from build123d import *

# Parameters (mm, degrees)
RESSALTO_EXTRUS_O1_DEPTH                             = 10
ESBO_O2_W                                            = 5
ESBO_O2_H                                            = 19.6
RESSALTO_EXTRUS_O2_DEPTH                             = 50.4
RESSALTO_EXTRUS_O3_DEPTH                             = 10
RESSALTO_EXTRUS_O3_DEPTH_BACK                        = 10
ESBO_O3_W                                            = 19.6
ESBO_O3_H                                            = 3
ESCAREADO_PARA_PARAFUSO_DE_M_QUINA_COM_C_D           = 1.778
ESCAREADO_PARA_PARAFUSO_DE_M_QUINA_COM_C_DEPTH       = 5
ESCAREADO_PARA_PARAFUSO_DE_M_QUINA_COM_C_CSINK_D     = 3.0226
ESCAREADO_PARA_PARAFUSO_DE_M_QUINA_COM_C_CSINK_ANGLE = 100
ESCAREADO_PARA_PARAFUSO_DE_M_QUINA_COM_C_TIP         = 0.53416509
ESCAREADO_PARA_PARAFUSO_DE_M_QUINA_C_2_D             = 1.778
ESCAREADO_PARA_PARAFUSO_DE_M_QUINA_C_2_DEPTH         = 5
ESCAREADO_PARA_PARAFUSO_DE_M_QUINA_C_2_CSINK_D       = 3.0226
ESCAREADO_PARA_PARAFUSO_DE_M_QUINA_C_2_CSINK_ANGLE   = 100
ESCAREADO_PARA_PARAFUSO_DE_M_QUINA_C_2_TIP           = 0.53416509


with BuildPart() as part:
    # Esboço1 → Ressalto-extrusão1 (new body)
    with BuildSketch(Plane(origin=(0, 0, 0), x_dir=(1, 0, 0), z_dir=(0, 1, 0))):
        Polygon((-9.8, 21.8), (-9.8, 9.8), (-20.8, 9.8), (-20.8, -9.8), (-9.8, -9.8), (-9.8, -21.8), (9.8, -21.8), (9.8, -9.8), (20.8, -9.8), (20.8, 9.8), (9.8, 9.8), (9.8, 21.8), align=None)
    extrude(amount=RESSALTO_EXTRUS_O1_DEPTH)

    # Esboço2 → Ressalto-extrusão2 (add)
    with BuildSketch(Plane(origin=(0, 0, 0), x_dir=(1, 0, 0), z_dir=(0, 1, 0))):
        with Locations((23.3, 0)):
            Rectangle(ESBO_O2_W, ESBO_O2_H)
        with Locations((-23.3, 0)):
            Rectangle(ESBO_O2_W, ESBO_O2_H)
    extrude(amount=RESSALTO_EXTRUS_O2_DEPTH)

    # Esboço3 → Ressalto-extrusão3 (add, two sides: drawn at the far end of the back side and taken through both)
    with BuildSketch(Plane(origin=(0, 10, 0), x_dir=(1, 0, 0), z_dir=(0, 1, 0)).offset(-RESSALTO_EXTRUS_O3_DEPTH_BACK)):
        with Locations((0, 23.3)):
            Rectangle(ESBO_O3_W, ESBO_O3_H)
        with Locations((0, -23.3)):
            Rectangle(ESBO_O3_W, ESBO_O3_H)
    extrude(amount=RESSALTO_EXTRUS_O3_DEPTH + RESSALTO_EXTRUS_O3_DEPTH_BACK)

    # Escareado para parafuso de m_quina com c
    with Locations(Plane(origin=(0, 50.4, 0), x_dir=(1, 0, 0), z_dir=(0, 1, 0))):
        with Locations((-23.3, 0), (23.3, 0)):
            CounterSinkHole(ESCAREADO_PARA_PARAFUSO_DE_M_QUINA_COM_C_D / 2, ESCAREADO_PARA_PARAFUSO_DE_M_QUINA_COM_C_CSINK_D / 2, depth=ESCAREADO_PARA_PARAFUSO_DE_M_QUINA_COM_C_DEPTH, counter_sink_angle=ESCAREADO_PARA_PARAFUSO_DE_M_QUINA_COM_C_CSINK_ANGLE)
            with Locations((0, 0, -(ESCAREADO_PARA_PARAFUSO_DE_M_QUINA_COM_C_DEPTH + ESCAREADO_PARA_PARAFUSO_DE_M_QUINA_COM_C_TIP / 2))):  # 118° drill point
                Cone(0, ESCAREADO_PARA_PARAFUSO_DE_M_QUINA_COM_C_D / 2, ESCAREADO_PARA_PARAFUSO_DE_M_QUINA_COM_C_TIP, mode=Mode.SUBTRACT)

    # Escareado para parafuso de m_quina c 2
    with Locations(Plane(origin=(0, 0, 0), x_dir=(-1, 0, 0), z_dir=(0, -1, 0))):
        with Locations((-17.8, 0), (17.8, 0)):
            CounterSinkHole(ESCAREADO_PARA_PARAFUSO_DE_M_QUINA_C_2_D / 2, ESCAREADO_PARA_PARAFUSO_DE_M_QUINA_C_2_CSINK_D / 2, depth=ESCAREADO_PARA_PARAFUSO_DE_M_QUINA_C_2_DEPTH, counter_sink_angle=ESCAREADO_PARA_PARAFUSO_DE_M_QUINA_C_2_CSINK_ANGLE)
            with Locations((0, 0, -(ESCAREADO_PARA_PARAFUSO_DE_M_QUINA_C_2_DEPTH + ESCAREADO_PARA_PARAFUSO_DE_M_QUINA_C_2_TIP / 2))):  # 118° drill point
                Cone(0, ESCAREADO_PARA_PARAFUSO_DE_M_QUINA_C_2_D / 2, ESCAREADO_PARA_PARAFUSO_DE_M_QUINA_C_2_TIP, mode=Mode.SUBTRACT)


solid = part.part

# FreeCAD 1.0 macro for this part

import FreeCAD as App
import Part
import Sketcher

V = App.Vector
Q = App.Units.Quantity

doc = App.newDocument("Part")
params = doc.addObject("Spreadsheet::Sheet", "Params")
for row, (alias, value) in enumerate([
    ("sketch1_width", "11 mm"),
    ("sketch1_height", "12 mm"),
    ("sketch1_width2", "19.6 mm"),
    ("pad1_length", "10 mm"),
    ("sketch2_width", "5 mm"),
    ("sketch2_height", "19.6 mm"),
    ("pad2_length", "50.4 mm"),
    ("sketch3_height", "3 mm"),
    ("sketch3_width", "19.6 mm"),
    ("pad3_length", "10 mm"),
    ("pad3_length2", "10 mm"),
    ("hole_diameter", "1.778 mm"),
    ("hole_depth", "5 mm"),
    ("hole_csink_diameter", "3.0226 mm"),
    ("hole2_diameter", "1.778 mm"),
    ("hole2_depth", "5 mm"),
    ("hole2_csink_diameter", "3.0226 mm"),
], start=1):
    params.set(f"A{row}", alias)
    params.set(f"B{row}", "=" + value)
    params.setAlias(f"B{row}", alias)

body = doc.addObject("PartDesign::Body", "Body")

# Sketch on XZ plane
sketch1 = body.newObject("Sketcher::SketchObject", "Sketch")
sketch1.AttachmentSupport = (doc.getObject("XZ_Plane"), [""])
sketch1.MapMode = "FlatFace"
sketch1.addGeometry([
    Part.LineSegment(V(-10, -22, 0), V(-10, -10, 0)),  # 0
    Part.LineSegment(V(-10, -10, 0), V(-21, -10, 0)),  # 1
    Part.LineSegment(V(-21, -10, 0), V(-21, 10, 0)),  # 2
    Part.LineSegment(V(-21, 10, 0), V(-10, 10, 0)),  # 3
    Part.LineSegment(V(-10, 10, 0), V(-10, 22, 0)),  # 4
    Part.LineSegment(V(-10, 22, 0), V(10, 22, 0)),  # 5
    Part.LineSegment(V(10, 22, 0), V(10, 10, 0)),  # 6
    Part.LineSegment(V(10, 10, 0), V(21, 10, 0)),  # 7
    Part.LineSegment(V(21, 10, 0), V(21, -10, 0)),  # 8
    Part.LineSegment(V(21, -10, 0), V(10, -10, 0)),  # 9
    Part.LineSegment(V(10, -10, 0), V(10, -22, 0)),  # 10
    Part.LineSegment(V(10, -22, 0), V(-10, -22, 0)),  # 11
], False)
sketch1.addConstraint([
    Sketcher.Constraint("Coincident", 0, 2, 1, 1),
    Sketcher.Constraint("Coincident", 1, 2, 2, 1),
    Sketcher.Constraint("Coincident", 2, 2, 3, 1),
    Sketcher.Constraint("Coincident", 3, 2, 4, 1),
    Sketcher.Constraint("Coincident", 4, 2, 5, 1),
    Sketcher.Constraint("Coincident", 5, 2, 6, 1),
    Sketcher.Constraint("Coincident", 6, 2, 7, 1),
    Sketcher.Constraint("Coincident", 7, 2, 8, 1),
    Sketcher.Constraint("Coincident", 8, 2, 9, 1),
    Sketcher.Constraint("Coincident", 9, 2, 10, 1),
    Sketcher.Constraint("Coincident", 10, 2, 11, 1),
    Sketcher.Constraint("Coincident", 11, 2, 0, 1),
    Sketcher.Constraint("Vertical", 0),
    Sketcher.Constraint("Horizontal", 1),
    Sketcher.Constraint("Vertical", 2),
    Sketcher.Constraint("Horizontal", 3),
    Sketcher.Constraint("Vertical", 4),
    Sketcher.Constraint("Horizontal", 5),
    Sketcher.Constraint("Vertical", 6),
    Sketcher.Constraint("Horizontal", 7),
    Sketcher.Constraint("Vertical", 8),
    Sketcher.Constraint("Horizontal", 9),
    Sketcher.Constraint("Vertical", 10),
    Sketcher.Constraint("Horizontal", 11),
    Sketcher.Constraint("Symmetric", 0, 2, 6, 2, -1, 1),
    Sketcher.Constraint("Symmetric", 2, 2, 8, 2, -1, 1),
    Sketcher.Constraint("Symmetric", 4, 2, 10, 2, -1, 1),
    Sketcher.Constraint("Symmetric", 3, 2, 6, 2, -2),
    Sketcher.Constraint("Equal", 11, 2),
    Sketcher.Constraint("DistanceX", 1, 2, 1, 1, Q("11 mm")),
    Sketcher.Constraint("DistanceY", 0, 1, 0, 2, Q("12 mm")),
    Sketcher.Constraint("DistanceX", 5, 1, 5, 2, Q("19.6 mm")),
])
sketch1.setExpression("Constraints[29]", "Params.sketch1_width")
sketch1.setExpression("Constraints[30]", "Params.sketch1_height")
sketch1.setExpression("Constraints[31]", "Params.sketch1_width2")
pad1 = body.newObject("PartDesign::Pad", "Pad")
pad1.Profile = sketch1
pad1.setExpression("Length", "Params.pad1_length")
pad1.Reversed = True

# Sketch on XZ plane
sketch2 = body.newObject("Sketcher::SketchObject", "Sketch001")
sketch2.AttachmentSupport = (doc.getObject("XZ_Plane"), [""])
sketch2.MapMode = "FlatFace"
sketch2.addGeometry([
    Part.LineSegment(V(21, -10, 0), V(21, 10, 0)),  # 0
    Part.LineSegment(V(21, 10, 0), V(26, 10, 0)),  # 1
    Part.LineSegment(V(26, 10, 0), V(26, -10, 0)),  # 2
    Part.LineSegment(V(26, -10, 0), V(21, -10, 0)),  # 3
    Part.LineSegment(V(-26, -10, 0), V(-26, 10, 0)),  # 4
    Part.LineSegment(V(-26, 10, 0), V(-21, 10, 0)),  # 5
    Part.LineSegment(V(-21, 10, 0), V(-21, -10, 0)),  # 6
    Part.LineSegment(V(-21, -10, 0), V(-26, -10, 0)),  # 7
], False)
sketch2.addConstraint([
    Sketcher.Constraint("Coincident", 0, 2, 1, 1),
    Sketcher.Constraint("Coincident", 1, 2, 2, 1),
    Sketcher.Constraint("Coincident", 2, 2, 3, 1),
    Sketcher.Constraint("Coincident", 3, 2, 0, 1),
    Sketcher.Constraint("Coincident", 4, 2, 5, 1),
    Sketcher.Constraint("Coincident", 5, 2, 6, 1),
    Sketcher.Constraint("Coincident", 6, 2, 7, 1),
    Sketcher.Constraint("Coincident", 7, 2, 4, 1),
    Sketcher.Constraint("Vertical", 0),
    Sketcher.Constraint("Horizontal", 1),
    Sketcher.Constraint("Vertical", 2),
    Sketcher.Constraint("Horizontal", 3),
    Sketcher.Constraint("Vertical", 4),
    Sketcher.Constraint("Horizontal", 5),
    Sketcher.Constraint("Vertical", 6),
    Sketcher.Constraint("Horizontal", 7),
    Sketcher.Constraint("Symmetric", 2, 2, 4, 2, -1, 1),
    Sketcher.Constraint("Symmetric", 0, 2, 6, 2, -1, 1),
    Sketcher.Constraint("Horizontal", 1, 2, 4, 2),
    Sketcher.Constraint("DistanceX", 1, 1, 1, 2, Q("5 mm")),
    Sketcher.Constraint("DistanceY", 0, 1, 0, 2, Q("19.6 mm")),
    Sketcher.Constraint("DistanceX", -1, 1, 0, 2, Q("20.8 mm")),
])
sketch2.setExpression("Constraints[19]", "Params.sketch2_width")
sketch2.setExpression("Constraints[20]", "Params.sketch2_height")
pad2 = body.newObject("PartDesign::Pad", "Pad001")
pad2.Profile = sketch2
pad2.setExpression("Length", "Params.pad2_length")
pad2.Reversed = True

# Sketch on XZ plane
sketch3 = body.newObject("Sketcher::SketchObject", "Sketch002")
sketch3.AttachmentSupport = (doc.getObject("XZ_Plane"), [""])
sketch3.MapMode = "FlatFace"
sketch3.AttachmentOffset = App.Placement(V(0, 0, -10), App.Rotation())
sketch3.addGeometry([
    Part.LineSegment(V(-9.8, -24.8, 0), V(-9.8, -21.8, 0)),  # 0
    Part.LineSegment(V(-9.8, -21.8, 0), V(9.8, -21.8, 0)),  # 1
    Part.LineSegment(V(9.8, -21.8, 0), V(9.8, -24.8, 0)),  # 2
    Part.LineSegment(V(9.8, -24.8, 0), V(-9.8, -24.8, 0)),  # 3
    Part.LineSegment(V(-9.8, 21.8, 0), V(-9.8, 24.8, 0)),  # 4
    Part.LineSegment(V(-9.8, 24.8, 0), V(9.8, 24.8, 0)),  # 5
    Part.LineSegment(V(9.8, 24.8, 0), V(9.8, 21.8, 0)),  # 6
    Part.LineSegment(V(9.8, 21.8, 0), V(-9.8, 21.8, 0)),  # 7
], False)
sketch3.addConstraint([
    Sketcher.Constraint("Coincident", 0, 2, 1, 1),
    Sketcher.Constraint("Coincident", 1, 2, 2, 1),
    Sketcher.Constraint("Coincident", 2, 2, 3, 1),
    Sketcher.Constraint("Coincident", 3, 2, 0, 1),
    Sketcher.Constraint("Coincident", 4, 2, 5, 1),
    Sketcher.Constraint("Coincident", 5, 2, 6, 1),
    Sketcher.Constraint("Coincident", 6, 2, 7, 1),
    Sketcher.Constraint("Coincident", 7, 2, 4, 1),
    Sketcher.Constraint("Vertical", 0),
    Sketcher.Constraint("Horizontal", 1),
    Sketcher.Constraint("Vertical", 2),
    Sketcher.Constraint("Horizontal", 3),
    Sketcher.Constraint("Vertical", 4),
    Sketcher.Constraint("Horizontal", 5),
    Sketcher.Constraint("Vertical", 6),
    Sketcher.Constraint("Horizontal", 7),
    Sketcher.Constraint("Symmetric", 2, 2, 4, 2, -1, 1),
    Sketcher.Constraint("Symmetric", 0, 2, 6, 2, -1, 1),
    Sketcher.Constraint("Vertical", 3, 2, 4, 2),
    Sketcher.Constraint("DistanceY", 0, 1, 0, 2, Q("3 mm")),
    Sketcher.Constraint("DistanceX", 1, 1, 1, 2, Q("19.6 mm")),
    Sketcher.Constraint("DistanceY", 0, 2, -1, 1, Q("21.8 mm")),
])
sketch3.setExpression("Constraints[19]", "Params.sketch3_height")
sketch3.setExpression("Constraints[20]", "Params.sketch3_width")
pad3 = body.newObject("PartDesign::Pad", "Pad002")
pad3.Profile = sketch3
pad3.Type = "TwoLengths"
pad3.setExpression("Length", "Params.pad3_length")
pad3.setExpression("Length2", "Params.pad3_length2")
pad3.Reversed = True

# Sketch on XZ plane
sketch4 = body.newObject("Sketcher::SketchObject", "Sketch003")
sketch4.AttachmentSupport = (doc.getObject("XZ_Plane"), [""])
sketch4.MapMode = "FlatFace"
sketch4.AttachmentOffset = App.Placement(V(0, 0, -50.4), App.Rotation())
sketch4.addGeometry([
    Part.Circle(V(-23.3, 0, 0), V(0, 0, 1), 0.9),
    Part.Circle(V(23.3, 0, 0), V(0, 0, 1), 0.9),
], False)
sketch4.addConstraint([
    Sketcher.Constraint("Equal", 0, 1),
    Sketcher.Constraint("Symmetric", 0, 3, 1, 3, -1, 1),
    Sketcher.Constraint("PointOnObject", 0, 3, -1),
    Sketcher.Constraint("Diameter", 0, Q("1.778 mm")),
    Sketcher.Constraint("DistanceX", 0, 3, -1, 1, Q("23.3 mm")),
])
doc.recompute()
hole = body.newObject("PartDesign::Hole", "Hole")
hole.Profile = sketch4
hole.ThreadType = "None"
hole.setExpression("Diameter", "Params.hole_diameter")
hole.DepthType = "Dimension"
hole.setExpression("Depth", "Params.hole_depth")
hole.DrillPoint = "Angled"
hole.DrillPointAngle = 118
hole.HoleCutType = "Countersink"
hole.setExpression("HoleCutDiameter", "Params.hole_csink_diameter")
hole.HoleCutCountersinkAngle = 100
hole.Reversed = True

# Sketch on XZ plane
sketch5 = body.newObject("Sketcher::SketchObject", "Sketch004")
sketch5.AttachmentSupport = (doc.getObject("XZ_Plane"), [""])
sketch5.MapMode = "FlatFace"
sketch5.addGeometry([
    Part.Circle(V(17.8, 0, 0), V(0, 0, 1), 0.9),
    Part.Circle(V(-17.8, 0, 0), V(0, 0, 1), 0.9),
], False)
sketch5.addConstraint([
    Sketcher.Constraint("Equal", 0, 1),
    Sketcher.Constraint("Symmetric", 0, 3, 1, 3, -1, 1),
    Sketcher.Constraint("PointOnObject", 0, 3, -1),
    Sketcher.Constraint("Diameter", 0, Q("1.778 mm")),
    Sketcher.Constraint("DistanceX", -1, 1, 0, 3, Q("17.8 mm")),
])
doc.recompute()
hole2 = body.newObject("PartDesign::Hole", "Hole001")
hole2.Profile = sketch5
hole2.ThreadType = "None"
hole2.setExpression("Diameter", "Params.hole2_diameter")
hole2.DepthType = "Dimension"
hole2.setExpression("Depth", "Params.hole2_depth")
hole2.DrillPoint = "Angled"
hole2.DrillPointAngle = 118
hole2.HoleCutType = "Countersink"
hole2.setExpression("HoleCutDiameter", "Params.hole2_csink_diameter")
hole2.HoleCutCountersinkAngle = 100

doc.recompute()
